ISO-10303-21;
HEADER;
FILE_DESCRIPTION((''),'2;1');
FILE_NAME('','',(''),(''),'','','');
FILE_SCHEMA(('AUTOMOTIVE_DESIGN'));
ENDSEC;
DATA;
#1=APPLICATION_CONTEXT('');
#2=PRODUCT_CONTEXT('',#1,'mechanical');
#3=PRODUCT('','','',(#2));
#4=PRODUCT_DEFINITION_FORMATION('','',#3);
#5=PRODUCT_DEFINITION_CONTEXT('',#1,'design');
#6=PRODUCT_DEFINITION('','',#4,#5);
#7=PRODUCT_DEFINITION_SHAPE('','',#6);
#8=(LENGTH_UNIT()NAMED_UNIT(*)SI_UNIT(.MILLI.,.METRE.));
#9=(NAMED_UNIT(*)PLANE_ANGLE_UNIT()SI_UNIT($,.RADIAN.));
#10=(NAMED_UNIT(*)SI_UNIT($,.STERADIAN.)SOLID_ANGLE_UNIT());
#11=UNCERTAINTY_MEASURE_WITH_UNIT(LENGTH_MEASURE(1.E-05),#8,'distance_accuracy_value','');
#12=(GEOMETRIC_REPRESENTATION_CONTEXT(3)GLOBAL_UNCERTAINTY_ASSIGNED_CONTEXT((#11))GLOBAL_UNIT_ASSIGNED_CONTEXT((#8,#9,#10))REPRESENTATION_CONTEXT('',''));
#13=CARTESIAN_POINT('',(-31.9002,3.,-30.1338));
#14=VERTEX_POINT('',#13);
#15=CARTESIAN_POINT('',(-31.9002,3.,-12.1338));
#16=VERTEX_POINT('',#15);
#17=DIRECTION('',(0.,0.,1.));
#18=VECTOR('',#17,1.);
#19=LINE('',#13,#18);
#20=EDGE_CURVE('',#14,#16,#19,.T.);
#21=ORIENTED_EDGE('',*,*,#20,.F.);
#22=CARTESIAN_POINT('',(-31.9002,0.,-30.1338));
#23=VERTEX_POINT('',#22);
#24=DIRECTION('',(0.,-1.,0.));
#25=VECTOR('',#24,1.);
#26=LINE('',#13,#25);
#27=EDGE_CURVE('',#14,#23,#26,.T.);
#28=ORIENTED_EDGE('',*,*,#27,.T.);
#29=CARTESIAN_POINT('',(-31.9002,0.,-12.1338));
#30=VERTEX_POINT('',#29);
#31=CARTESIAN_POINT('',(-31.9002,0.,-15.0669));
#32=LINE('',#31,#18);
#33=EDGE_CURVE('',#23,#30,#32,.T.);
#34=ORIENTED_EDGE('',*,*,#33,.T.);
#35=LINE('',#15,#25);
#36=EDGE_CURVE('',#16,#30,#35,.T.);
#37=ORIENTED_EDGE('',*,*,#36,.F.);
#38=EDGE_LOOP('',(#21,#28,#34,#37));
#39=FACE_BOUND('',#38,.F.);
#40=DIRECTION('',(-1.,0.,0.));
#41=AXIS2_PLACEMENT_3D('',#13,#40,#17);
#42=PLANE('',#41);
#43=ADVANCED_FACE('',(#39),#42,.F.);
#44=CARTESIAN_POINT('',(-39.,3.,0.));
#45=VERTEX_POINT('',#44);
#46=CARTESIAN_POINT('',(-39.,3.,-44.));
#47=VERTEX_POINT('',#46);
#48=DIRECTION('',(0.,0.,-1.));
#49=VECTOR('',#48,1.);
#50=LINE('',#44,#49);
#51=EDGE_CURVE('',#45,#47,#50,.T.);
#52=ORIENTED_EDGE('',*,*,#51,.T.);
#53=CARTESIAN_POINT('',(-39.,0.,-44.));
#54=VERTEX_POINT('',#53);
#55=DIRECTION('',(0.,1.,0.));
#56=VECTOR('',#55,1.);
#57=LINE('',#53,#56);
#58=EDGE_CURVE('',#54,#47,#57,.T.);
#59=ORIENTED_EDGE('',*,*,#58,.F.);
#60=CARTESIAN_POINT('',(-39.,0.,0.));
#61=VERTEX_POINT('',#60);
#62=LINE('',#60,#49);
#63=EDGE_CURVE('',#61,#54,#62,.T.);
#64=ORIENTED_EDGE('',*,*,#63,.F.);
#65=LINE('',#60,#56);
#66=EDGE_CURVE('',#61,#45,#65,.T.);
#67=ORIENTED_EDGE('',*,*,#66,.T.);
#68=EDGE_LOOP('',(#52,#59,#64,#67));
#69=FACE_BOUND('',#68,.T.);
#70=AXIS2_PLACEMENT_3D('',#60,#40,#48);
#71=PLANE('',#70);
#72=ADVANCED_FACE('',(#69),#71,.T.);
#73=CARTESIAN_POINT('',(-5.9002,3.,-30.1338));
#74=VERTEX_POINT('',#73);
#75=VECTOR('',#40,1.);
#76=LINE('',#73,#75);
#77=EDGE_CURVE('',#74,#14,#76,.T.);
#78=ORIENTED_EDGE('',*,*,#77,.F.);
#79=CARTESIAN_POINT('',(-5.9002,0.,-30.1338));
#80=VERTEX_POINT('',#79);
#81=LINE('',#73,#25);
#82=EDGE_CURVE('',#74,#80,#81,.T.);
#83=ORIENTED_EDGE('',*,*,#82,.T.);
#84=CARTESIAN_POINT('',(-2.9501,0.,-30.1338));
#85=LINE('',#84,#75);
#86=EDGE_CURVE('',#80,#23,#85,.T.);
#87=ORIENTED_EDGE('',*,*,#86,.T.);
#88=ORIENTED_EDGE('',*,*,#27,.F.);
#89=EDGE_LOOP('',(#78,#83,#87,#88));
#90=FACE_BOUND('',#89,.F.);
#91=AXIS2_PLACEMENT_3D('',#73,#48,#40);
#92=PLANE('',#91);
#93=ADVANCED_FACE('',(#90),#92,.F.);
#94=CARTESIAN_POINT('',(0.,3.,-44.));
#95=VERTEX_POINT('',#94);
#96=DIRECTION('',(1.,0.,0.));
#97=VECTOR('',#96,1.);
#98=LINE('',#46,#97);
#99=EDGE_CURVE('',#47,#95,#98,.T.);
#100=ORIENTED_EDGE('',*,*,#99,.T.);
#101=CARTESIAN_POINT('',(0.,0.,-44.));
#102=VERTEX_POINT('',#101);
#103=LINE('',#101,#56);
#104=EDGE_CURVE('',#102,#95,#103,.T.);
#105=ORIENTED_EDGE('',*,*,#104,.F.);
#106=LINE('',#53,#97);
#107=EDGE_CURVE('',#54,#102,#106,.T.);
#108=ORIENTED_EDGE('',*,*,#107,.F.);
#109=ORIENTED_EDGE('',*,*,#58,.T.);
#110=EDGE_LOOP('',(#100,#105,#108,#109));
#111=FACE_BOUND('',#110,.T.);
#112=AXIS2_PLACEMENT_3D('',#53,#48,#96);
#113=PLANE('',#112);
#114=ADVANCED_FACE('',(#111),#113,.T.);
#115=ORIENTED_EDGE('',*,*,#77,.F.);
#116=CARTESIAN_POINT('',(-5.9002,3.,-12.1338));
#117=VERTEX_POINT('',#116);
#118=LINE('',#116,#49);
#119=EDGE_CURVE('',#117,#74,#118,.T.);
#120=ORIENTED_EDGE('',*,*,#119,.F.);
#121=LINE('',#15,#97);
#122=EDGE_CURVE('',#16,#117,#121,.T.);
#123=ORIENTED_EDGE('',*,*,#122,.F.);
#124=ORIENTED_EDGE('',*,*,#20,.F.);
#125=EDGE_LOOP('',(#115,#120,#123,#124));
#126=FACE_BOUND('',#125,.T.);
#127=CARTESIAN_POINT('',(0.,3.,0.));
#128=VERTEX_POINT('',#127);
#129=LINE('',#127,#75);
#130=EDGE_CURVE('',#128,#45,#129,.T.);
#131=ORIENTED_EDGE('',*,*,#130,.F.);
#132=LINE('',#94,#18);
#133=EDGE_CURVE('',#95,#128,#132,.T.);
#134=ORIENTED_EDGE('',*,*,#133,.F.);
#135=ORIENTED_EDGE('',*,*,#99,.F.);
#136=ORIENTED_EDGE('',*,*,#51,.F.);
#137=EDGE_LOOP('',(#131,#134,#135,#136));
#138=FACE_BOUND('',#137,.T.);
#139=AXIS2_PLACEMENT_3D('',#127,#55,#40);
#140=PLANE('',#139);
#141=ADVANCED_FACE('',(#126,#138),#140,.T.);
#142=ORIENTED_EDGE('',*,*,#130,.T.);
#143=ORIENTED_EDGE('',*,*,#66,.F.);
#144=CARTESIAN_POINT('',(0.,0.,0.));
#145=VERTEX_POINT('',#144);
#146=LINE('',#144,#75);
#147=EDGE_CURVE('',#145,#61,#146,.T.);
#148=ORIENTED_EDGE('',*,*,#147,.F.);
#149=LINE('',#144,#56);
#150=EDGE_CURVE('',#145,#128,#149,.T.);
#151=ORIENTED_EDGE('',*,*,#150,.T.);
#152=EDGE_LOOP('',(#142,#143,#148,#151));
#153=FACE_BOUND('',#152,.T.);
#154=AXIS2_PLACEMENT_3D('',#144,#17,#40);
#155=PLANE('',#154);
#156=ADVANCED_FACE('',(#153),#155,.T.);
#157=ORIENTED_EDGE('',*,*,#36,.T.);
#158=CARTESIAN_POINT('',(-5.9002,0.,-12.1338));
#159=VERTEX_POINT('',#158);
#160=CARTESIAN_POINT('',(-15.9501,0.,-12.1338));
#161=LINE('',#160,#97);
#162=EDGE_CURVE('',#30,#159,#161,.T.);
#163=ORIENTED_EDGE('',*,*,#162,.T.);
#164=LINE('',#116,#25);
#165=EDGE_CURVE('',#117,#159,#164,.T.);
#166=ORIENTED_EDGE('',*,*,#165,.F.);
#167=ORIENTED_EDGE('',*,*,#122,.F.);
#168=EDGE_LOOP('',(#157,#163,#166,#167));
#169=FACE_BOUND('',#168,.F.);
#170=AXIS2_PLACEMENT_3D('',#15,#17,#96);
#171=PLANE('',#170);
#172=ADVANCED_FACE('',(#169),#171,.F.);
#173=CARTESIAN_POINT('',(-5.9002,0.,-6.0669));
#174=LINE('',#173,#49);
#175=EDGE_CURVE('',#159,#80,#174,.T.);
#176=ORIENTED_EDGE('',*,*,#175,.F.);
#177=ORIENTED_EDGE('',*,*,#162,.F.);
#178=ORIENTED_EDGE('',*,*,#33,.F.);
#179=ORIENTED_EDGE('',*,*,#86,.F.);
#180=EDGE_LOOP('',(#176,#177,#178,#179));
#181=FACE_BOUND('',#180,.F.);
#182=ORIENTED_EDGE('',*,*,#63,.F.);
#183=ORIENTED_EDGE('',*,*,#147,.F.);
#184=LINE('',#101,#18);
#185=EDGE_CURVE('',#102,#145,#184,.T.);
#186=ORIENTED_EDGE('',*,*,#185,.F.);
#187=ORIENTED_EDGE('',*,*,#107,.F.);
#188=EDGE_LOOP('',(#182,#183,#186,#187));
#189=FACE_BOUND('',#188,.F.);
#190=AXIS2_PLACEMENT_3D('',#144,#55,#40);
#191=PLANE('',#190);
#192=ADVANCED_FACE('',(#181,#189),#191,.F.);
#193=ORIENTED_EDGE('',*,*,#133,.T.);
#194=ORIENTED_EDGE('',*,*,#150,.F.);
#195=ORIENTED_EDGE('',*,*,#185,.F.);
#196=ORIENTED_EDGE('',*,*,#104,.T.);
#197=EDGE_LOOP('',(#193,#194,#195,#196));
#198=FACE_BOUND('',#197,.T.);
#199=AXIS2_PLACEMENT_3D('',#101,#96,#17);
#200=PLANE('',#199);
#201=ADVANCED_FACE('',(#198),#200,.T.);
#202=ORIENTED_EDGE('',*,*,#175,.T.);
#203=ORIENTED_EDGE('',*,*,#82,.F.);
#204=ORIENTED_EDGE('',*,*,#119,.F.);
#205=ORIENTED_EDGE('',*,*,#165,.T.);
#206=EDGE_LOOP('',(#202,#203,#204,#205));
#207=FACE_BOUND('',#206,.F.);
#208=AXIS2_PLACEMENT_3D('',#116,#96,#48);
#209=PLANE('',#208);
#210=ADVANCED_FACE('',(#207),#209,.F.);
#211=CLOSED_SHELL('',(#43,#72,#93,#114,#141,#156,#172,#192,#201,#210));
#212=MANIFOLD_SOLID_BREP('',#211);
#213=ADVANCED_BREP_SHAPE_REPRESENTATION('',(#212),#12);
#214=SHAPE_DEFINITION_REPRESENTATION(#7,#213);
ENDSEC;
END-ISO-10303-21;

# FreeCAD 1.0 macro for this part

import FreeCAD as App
import Part
import Sketcher
from FreeCAD import Vector
Q = App.Units.Quantity

doc = App.newDocument("Part")
body = doc.addObject("PartDesign::Body", "Body")

sketch1 = body.newObject("Sketcher::SketchObject", "Sketch")
sketch1.AttachmentSupport = (doc.getObject("XZ_Plane"), [""])
sketch1.MapMode = "FlatFace"
sketch1.addGeometry(Part.LineSegment(Vector(-39, 0, 0), Vector(0, 0, 0)), False)
sketch1.addGeometry(Part.LineSegment(Vector(0, 0, 0), Vector(0, -44, 0)), False)
sketch1.addGeometry(Part.LineSegment(Vector(0, -44, 0), Vector(-39, -44, 0)), False)
sketch1.addGeometry(Part.LineSegment(Vector(-39, -44, 0), Vector(-39, 0, 0)), False)
sketch1.addConstraint(Sketcher.Constraint("Coincident", 0, 2, 1, 1))
sketch1.addConstraint(Sketcher.Constraint("Coincident", 1, 2, 2, 1))
sketch1.addConstraint(Sketcher.Constraint("Coincident", 2, 2, 3, 1))
sketch1.addConstraint(Sketcher.Constraint("Coincident", 3, 2, 0, 1))
sketch1.addConstraint(Sketcher.Constraint("Horizontal", 0))
sketch1.addConstraint(Sketcher.Constraint("Vertical", 1))
sketch1.addConstraint(Sketcher.Constraint("Horizontal", 2))
sketch1.addConstraint(Sketcher.Constraint("Vertical", 3))
sketch1.addConstraint(Sketcher.Constraint("Coincident", 0, 2, -1, 1))
sketch1.addConstraint(Sketcher.Constraint("DistanceX", 0, 1, 0, 2, Q("39 mm")))
sketch1.addConstraint(Sketcher.Constraint("DistanceY", 1, 2, 1, 1, Q("44 mm")))
pad1 = body.newObject("PartDesign::Pad", "Pad")
pad1.Profile = sketch1
pad1.Length = 3
pad1.Reversed = True

sketch2 = body.newObject("Sketcher::SketchObject", "Sketch001")
sketch2.AttachmentSupport = (doc.getObject("XZ_Plane"), [""])
sketch2.MapMode = "FlatFace"
sketch2.AttachmentOffset = App.Placement(Vector(0, 0, -3), App.Rotation())
sketch2.addGeometry(Part.LineSegment(Vector(-32, -30, 0), Vector(-32, -12, 0)), False)
sketch2.addGeometry(Part.LineSegment(Vector(-32, -12, 0), Vector(-6, -12, 0)), False)
sketch2.addGeometry(Part.LineSegment(Vector(-6, -12, 0), Vector(-6, -30, 0)), False)
sketch2.addGeometry(Part.LineSegment(Vector(-6, -30, 0), Vector(-32, -30, 0)), False)
sketch2.addConstraint(Sketcher.Constraint("Coincident", 0, 2, 1, 1))
sketch2.addConstraint(Sketcher.Constraint("Coincident", 1, 2, 2, 1))
sketch2.addConstraint(Sketcher.Constraint("Coincident", 2, 2, 3, 1))
sketch2.addConstraint(Sketcher.Constraint("Coincident", 3, 2, 0, 1))
sketch2.addConstraint(Sketcher.Constraint("Vertical", 0))
sketch2.addConstraint(Sketcher.Constraint("Horizontal", 1))
sketch2.addConstraint(Sketcher.Constraint("Vertical", 2))
sketch2.addConstraint(Sketcher.Constraint("Horizontal", 3))
sketch2.addConstraint(Sketcher.Constraint("DistanceX", 1, 1, 1, 2, Q("26 mm")))
sketch2.addConstraint(Sketcher.Constraint("DistanceY", 0, 1, 0, 2, Q("18 mm")))
sketch2.addConstraint(Sketcher.Constraint("DistanceX", 0, 2, -1, 1, Q("31.9002 mm")))
sketch2.addConstraint(Sketcher.Constraint("DistanceY", 0, 2, -1, 1, Q("12.1338 mm")))
pocket1 = body.newObject("PartDesign::Pocket", "Pocket")
pocket1.Profile = sketch2
pocket1.Length = 3.25
pocket1.Reversed = True

doc.recompute()
